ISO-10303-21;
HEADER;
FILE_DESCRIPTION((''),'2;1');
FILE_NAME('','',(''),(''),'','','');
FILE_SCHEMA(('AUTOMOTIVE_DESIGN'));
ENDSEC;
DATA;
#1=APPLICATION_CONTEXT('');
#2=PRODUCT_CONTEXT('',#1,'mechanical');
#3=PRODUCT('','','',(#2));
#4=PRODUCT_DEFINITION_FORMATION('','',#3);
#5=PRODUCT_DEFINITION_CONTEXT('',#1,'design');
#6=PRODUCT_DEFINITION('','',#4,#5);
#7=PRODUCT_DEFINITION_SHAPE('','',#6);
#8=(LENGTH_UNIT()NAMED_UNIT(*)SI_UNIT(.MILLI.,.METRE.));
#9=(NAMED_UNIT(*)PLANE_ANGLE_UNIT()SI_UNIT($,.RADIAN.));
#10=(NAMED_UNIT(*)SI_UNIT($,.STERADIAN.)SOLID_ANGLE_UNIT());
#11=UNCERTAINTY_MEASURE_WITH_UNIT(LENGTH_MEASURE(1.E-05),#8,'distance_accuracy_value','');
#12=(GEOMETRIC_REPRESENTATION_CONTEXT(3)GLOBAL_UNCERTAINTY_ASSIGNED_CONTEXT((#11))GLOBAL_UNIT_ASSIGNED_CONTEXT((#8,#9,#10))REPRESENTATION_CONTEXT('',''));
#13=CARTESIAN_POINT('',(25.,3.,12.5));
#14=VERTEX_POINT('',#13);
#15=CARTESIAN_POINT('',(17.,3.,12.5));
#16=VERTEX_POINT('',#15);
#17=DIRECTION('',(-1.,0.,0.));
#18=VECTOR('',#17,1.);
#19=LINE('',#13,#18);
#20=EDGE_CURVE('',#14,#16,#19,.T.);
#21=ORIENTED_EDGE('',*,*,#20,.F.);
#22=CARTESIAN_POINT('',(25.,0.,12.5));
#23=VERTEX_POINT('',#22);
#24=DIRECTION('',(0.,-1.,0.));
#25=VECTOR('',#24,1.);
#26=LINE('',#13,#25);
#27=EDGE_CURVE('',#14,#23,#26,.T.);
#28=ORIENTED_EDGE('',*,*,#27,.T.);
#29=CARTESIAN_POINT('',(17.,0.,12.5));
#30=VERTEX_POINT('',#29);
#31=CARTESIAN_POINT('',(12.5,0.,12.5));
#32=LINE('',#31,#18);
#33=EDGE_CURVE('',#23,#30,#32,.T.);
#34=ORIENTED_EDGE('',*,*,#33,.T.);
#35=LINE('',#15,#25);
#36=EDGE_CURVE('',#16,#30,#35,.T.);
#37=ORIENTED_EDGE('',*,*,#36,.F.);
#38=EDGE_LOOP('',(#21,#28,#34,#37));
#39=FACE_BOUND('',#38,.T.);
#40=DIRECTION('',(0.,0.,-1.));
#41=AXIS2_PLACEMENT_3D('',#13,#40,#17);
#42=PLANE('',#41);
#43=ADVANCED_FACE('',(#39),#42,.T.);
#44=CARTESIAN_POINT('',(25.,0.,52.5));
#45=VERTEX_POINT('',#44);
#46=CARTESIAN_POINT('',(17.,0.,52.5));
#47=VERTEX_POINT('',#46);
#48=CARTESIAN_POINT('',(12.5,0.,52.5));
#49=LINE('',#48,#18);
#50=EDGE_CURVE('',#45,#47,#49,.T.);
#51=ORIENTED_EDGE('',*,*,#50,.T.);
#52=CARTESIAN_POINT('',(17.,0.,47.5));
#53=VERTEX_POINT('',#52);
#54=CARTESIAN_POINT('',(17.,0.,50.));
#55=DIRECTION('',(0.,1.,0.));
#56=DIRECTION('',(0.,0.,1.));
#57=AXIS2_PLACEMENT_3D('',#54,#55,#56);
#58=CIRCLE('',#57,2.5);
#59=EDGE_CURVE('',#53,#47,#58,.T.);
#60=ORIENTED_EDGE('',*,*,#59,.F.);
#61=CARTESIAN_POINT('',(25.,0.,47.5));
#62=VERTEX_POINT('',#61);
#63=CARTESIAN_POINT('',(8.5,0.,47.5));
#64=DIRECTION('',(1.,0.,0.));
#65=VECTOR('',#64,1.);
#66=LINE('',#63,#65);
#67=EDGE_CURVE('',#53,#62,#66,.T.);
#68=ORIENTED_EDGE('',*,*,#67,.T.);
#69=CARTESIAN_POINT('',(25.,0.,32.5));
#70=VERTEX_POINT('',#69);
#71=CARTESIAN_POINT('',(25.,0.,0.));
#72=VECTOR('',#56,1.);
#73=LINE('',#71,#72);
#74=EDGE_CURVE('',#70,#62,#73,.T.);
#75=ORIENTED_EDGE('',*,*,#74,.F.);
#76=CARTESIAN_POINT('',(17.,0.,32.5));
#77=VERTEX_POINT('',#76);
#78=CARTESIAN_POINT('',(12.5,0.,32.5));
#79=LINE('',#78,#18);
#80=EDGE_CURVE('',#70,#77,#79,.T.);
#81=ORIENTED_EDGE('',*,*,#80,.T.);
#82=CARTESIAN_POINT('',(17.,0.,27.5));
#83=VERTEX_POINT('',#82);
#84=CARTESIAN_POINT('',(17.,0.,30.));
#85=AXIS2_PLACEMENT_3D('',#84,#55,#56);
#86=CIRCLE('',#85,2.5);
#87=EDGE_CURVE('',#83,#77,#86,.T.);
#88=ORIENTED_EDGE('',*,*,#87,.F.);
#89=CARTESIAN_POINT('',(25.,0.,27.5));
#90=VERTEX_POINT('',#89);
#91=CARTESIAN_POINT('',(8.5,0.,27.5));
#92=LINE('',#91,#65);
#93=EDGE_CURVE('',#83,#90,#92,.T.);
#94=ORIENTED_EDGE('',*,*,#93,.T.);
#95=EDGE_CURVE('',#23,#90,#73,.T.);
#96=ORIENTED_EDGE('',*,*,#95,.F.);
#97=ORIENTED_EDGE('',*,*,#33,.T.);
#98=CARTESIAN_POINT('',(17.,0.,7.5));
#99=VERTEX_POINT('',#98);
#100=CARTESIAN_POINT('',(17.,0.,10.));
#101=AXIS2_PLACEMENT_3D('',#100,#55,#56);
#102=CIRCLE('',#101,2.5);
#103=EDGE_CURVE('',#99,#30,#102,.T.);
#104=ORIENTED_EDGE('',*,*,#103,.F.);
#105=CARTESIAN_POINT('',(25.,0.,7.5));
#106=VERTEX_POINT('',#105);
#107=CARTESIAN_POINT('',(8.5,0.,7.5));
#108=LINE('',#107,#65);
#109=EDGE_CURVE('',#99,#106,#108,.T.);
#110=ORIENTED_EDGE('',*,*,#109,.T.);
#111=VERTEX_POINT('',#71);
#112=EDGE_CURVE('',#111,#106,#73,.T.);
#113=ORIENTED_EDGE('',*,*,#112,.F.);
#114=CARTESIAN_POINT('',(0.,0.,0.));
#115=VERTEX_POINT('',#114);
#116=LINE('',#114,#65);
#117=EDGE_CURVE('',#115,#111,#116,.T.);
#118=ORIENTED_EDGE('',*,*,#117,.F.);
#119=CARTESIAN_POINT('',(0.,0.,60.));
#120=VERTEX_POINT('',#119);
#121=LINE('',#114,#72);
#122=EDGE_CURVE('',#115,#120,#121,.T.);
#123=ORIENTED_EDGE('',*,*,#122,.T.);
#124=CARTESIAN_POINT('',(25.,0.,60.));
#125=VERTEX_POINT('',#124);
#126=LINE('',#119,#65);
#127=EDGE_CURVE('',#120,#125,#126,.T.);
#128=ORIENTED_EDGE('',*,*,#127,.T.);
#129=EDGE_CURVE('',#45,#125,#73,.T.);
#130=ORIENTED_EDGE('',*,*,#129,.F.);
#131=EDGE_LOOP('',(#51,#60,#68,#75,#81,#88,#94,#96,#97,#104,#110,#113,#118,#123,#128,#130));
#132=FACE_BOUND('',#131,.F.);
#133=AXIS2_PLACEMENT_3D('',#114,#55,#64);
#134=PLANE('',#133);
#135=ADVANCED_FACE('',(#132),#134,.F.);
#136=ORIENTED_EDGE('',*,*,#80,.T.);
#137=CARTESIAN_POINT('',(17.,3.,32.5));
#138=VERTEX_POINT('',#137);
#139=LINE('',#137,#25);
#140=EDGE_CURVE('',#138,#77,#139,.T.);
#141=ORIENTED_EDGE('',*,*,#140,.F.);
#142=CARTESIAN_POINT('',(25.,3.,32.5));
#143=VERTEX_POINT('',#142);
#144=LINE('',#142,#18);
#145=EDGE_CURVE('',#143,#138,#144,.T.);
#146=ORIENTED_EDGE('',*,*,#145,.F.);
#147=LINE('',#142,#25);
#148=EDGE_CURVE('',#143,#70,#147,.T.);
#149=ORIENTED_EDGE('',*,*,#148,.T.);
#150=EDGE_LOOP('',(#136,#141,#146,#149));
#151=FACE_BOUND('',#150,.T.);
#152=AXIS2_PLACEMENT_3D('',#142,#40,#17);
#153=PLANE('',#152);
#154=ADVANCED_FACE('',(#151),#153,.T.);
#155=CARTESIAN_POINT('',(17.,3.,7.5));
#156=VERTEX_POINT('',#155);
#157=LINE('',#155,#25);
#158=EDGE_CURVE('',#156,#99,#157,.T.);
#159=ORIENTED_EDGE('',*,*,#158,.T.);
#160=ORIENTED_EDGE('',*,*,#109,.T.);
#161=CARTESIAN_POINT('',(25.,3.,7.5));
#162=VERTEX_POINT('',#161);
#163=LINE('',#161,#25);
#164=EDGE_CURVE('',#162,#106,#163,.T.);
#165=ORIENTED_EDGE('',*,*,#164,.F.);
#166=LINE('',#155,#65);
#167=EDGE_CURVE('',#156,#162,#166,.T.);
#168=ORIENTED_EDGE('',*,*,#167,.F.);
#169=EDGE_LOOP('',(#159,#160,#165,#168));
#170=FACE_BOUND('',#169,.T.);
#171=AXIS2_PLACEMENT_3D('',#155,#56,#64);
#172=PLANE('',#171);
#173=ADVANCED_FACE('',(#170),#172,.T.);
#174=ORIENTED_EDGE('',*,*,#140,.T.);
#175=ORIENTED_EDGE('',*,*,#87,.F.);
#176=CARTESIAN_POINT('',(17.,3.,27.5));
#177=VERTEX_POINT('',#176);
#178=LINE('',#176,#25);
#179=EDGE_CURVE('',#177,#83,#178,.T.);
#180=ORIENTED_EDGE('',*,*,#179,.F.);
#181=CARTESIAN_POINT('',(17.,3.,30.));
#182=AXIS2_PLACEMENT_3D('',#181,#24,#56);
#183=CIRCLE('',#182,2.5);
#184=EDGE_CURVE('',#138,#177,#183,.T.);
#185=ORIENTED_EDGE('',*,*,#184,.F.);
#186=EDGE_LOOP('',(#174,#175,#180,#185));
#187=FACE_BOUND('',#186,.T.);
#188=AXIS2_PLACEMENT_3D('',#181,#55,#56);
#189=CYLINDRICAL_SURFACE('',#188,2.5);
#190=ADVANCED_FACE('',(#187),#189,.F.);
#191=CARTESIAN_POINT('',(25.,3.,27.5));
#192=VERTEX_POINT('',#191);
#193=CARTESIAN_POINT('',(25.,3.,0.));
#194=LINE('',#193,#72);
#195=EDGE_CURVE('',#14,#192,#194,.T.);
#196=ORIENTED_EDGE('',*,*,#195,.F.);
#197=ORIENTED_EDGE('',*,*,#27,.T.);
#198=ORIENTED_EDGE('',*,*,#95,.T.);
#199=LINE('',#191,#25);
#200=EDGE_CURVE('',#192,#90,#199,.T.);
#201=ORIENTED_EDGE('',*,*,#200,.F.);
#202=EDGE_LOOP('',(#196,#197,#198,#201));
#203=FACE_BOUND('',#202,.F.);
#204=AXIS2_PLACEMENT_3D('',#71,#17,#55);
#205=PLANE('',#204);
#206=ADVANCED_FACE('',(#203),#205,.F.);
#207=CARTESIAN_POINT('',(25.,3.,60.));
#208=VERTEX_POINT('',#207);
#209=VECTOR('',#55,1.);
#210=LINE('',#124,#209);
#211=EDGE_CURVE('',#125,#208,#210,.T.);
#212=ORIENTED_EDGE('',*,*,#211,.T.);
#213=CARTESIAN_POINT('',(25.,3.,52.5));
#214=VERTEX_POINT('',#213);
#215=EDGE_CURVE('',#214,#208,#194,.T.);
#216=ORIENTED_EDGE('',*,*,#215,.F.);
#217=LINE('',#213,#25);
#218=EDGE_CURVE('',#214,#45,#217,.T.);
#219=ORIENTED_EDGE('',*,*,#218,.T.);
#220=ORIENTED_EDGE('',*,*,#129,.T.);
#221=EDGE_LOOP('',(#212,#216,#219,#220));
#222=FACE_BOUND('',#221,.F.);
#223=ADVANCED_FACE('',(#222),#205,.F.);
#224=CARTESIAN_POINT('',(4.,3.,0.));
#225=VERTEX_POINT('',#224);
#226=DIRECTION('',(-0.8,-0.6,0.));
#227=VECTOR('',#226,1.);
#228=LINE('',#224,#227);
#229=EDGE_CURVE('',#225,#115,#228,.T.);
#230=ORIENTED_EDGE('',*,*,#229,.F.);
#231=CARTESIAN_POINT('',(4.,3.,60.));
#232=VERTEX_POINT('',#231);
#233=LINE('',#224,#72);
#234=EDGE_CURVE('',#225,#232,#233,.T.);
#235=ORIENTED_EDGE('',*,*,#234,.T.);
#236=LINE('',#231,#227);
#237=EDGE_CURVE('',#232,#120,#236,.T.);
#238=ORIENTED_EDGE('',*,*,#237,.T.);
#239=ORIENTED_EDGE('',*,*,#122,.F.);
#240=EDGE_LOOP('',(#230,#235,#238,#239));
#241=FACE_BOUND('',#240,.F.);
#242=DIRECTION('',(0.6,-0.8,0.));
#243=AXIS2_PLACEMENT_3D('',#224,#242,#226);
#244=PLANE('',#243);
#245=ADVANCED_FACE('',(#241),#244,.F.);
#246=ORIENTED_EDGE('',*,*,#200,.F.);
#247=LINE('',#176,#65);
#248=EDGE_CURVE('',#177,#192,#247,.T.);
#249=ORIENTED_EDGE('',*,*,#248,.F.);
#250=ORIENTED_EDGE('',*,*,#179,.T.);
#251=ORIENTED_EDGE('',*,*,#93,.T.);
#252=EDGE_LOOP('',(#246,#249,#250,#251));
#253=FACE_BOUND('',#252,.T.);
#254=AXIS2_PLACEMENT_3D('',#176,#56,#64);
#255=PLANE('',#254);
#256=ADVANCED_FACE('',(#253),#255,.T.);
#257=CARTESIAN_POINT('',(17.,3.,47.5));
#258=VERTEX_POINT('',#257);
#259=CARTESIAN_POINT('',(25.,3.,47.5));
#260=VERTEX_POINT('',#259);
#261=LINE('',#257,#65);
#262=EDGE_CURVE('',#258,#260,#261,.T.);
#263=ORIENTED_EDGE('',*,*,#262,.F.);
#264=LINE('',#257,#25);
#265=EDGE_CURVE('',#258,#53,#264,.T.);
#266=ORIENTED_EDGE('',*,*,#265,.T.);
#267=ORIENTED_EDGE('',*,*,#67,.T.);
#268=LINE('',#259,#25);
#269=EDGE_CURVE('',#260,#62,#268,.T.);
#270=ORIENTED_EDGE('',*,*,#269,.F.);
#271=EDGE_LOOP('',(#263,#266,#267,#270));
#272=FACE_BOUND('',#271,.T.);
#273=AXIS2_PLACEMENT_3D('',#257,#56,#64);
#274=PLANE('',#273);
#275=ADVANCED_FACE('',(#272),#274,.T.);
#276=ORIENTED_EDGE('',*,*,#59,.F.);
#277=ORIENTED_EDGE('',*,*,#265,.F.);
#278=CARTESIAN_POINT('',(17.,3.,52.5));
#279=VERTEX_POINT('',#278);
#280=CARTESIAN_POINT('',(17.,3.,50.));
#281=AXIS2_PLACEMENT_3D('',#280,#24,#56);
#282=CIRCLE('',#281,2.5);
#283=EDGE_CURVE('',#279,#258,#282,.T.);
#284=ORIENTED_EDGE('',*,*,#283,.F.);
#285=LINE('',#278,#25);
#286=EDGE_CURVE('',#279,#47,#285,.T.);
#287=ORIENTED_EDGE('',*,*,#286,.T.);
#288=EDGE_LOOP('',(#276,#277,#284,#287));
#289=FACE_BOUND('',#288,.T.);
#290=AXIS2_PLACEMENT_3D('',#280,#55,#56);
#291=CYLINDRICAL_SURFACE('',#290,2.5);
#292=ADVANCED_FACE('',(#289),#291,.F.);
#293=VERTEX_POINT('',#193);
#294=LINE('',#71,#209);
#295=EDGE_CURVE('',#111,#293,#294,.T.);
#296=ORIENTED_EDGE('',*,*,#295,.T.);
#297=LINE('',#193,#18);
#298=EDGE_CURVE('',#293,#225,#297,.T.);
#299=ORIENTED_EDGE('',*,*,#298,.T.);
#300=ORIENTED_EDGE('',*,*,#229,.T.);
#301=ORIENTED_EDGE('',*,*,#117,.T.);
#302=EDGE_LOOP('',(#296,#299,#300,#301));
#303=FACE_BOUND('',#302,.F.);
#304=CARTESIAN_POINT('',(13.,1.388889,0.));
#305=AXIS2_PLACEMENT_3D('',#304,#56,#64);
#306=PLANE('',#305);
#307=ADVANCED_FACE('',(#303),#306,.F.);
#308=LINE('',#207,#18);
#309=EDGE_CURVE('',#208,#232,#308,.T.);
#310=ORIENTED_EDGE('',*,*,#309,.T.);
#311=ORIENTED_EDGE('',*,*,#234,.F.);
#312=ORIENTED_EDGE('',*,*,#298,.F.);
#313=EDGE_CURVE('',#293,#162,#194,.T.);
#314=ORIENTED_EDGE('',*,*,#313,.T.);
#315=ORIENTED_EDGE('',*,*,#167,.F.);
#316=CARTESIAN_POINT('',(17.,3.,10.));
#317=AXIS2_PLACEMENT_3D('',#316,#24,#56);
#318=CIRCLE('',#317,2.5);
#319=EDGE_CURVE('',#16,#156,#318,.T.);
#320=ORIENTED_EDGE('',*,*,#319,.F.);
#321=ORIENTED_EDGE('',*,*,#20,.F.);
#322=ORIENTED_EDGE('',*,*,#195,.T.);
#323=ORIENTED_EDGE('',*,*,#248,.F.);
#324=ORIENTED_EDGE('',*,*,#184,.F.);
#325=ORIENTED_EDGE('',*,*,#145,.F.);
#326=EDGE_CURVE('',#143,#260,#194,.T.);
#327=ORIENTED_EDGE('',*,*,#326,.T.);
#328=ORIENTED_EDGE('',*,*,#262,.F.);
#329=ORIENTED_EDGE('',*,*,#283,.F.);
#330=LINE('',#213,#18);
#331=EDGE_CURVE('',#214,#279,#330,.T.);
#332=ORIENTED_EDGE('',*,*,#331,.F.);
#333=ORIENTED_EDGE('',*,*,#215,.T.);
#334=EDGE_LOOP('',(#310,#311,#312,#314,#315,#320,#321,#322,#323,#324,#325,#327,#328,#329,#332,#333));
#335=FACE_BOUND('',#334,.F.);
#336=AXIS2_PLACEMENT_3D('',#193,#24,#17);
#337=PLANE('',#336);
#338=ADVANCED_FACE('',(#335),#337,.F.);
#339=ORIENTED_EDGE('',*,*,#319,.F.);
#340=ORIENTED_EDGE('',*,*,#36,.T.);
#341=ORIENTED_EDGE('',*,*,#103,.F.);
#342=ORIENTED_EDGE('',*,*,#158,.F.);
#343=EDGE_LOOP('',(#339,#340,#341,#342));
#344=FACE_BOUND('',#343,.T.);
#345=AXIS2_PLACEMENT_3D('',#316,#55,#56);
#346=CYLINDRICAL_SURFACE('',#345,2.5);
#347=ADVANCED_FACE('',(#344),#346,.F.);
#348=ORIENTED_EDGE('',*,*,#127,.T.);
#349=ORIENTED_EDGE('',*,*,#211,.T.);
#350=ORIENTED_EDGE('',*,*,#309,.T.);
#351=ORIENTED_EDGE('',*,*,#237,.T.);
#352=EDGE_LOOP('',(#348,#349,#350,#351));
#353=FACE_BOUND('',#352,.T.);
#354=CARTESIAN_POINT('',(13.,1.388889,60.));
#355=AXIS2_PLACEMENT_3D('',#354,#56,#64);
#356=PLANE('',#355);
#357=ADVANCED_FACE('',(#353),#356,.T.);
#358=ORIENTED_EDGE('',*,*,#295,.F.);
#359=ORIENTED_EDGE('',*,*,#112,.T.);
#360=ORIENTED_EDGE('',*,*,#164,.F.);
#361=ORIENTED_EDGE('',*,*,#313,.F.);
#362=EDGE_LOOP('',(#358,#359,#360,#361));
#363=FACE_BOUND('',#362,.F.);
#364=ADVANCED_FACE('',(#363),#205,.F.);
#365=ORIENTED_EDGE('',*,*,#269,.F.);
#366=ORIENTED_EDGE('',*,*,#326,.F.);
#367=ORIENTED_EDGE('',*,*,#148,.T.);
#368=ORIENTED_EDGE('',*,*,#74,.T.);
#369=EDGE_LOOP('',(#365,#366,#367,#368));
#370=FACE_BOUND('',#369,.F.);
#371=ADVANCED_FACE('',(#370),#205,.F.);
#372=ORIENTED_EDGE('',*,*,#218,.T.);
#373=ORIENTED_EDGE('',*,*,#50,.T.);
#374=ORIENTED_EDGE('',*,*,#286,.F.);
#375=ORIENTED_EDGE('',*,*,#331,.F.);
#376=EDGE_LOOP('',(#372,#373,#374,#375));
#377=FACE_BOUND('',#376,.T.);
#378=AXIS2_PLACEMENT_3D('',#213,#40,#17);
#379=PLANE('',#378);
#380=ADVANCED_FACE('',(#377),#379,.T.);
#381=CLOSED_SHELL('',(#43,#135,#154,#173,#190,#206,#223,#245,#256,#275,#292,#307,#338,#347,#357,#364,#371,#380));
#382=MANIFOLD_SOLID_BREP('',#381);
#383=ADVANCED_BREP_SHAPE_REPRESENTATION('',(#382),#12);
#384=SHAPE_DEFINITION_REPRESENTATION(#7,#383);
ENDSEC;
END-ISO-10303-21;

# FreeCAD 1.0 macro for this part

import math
import FreeCAD as App
import Part
import Sketcher

V = App.Vector
Q = App.Units.Quantity

doc = App.newDocument("Part")
params = doc.addObject("Spreadsheet::Sheet", "Params")
for row, (alias, value) in enumerate([
    ("sketch1_width", "25 mm"),
    ("sketch1_width2", "21 mm"),
    ("sketch1_height", "3 mm"),
    ("pad1_length", "60 mm"),
    ("sketch2_radius", "2.5 mm"),
    ("sketch2_width", "8 mm"),
], start=1):
    params.set(f"A{row}", alias)
    params.set(f"B{row}", "=" + value)
    params.setAlias(f"B{row}", alias)

body = doc.addObject("PartDesign::Body", "Body")

sketch1 = body.newObject("Sketcher::SketchObject", "Sketch")
sketch1.AttachmentSupport = (doc.getObject("XY_Plane"), [""])
sketch1.MapMode = "FlatFace"
sketch1.addGeometry(Part.LineSegment(V(0, 0, 0), V(25, 0, 0)), False)
sketch1.addGeometry(Part.LineSegment(V(25, 0, 0), V(25, 3, 0)), False)
sketch1.addGeometry(Part.LineSegment(V(25, 3, 0), V(4, 3, 0)), False)
sketch1.addGeometry(Part.LineSegment(V(4, 3, 0), V(0, 0, 0)), False)
sketch1.addConstraint(Sketcher.Constraint("Coincident", 0, 2, 1, 1))
sketch1.addConstraint(Sketcher.Constraint("Coincident", 1, 2, 2, 1))
sketch1.addConstraint(Sketcher.Constraint("Coincident", 2, 2, 3, 1))
sketch1.addConstraint(Sketcher.Constraint("Coincident", 3, 2, 0, 1))
sketch1.addConstraint(Sketcher.Constraint("Horizontal", 0))
sketch1.addConstraint(Sketcher.Constraint("Vertical", 1))
sketch1.addConstraint(Sketcher.Constraint("Horizontal", 2))
sketch1.addConstraint(Sketcher.Constraint("Coincident", 3, 2, -1, 1))
sketch1.addConstraint(Sketcher.Constraint("DistanceX", 0, 1, 0, 2, Q("25 mm")))
sketch1.addConstraint(Sketcher.Constraint("DistanceX", 2, 2, 2, 1, Q("21 mm")))
sketch1.addConstraint(Sketcher.Constraint("DistanceY", 1, 1, 1, 2, Q("3 mm")))
sketch1.setExpression("Constraints[8]", "Params.sketch1_width")
sketch1.setExpression("Constraints[9]", "Params.sketch1_width2")
sketch1.setExpression("Constraints[10]", "Params.sketch1_height")
pad1 = body.newObject("PartDesign::Pad", "Pad")
pad1.Profile = sketch1
pad1.setExpression("Length", "Params.pad1_length")

sketch2 = body.newObject("Sketcher::SketchObject", "Sketch001")
sketch2.AttachmentSupport = (doc.getObject("XZ_Plane"), [""])
sketch2.MapMode = "FlatFace"
sketch2.AttachmentOffset = App.Placement(V(0, 0, -3), App.Rotation())
sketch2.addGeometry(Part.LineSegment(V(17, 52.5, 0), V(25, 52.5, 0)), False)
sketch2.addGeometry(Part.LineSegment(V(25, 52.5, 0), V(25, 47.5, 0)), False)
sketch2.addGeometry(Part.LineSegment(V(25, 47.5, 0), V(17, 47.5, 0)), False)
sketch2.addGeometry(Part.ArcOfCircle(Part.Circle(V(17, 50, 0), V(0, 0, 1), 2.5), math.radians(90), math.radians(270)), False)
sketch2.addGeometry(Part.LineSegment(V(17, 32.5, 0), V(25, 32.5, 0)), False)
sketch2.addGeometry(Part.LineSegment(V(25, 32.5, 0), V(25, 27.5, 0)), False)
sketch2.addGeometry(Part.LineSegment(V(25, 27.5, 0), V(17, 27.5, 0)), False)
sketch2.addGeometry(Part.ArcOfCircle(Part.Circle(V(17, 30, 0), V(0, 0, 1), 2.5), math.radians(90), math.radians(270)), False)
sketch2.addGeometry(Part.LineSegment(V(17, 12.5, 0), V(25, 12.5, 0)), False)
sketch2.addGeometry(Part.LineSegment(V(25, 12.5, 0), V(25, 7.5, 0)), False)
sketch2.addGeometry(Part.LineSegment(V(25, 7.5, 0), V(17, 7.5, 0)), False)
sketch2.addGeometry(Part.ArcOfCircle(Part.Circle(V(17, 10, 0), V(0, 0, 1), 2.5), math.radians(90), math.radians(270)), False)
sketch2.addConstraint(Sketcher.Constraint("Coincident", 0, 2, 1, 1))
sketch2.addConstraint(Sketcher.Constraint("Coincident", 1, 2, 2, 1))
sketch2.addConstraint(Sketcher.Constraint("Tangent", 2, 2, 3, 2))
sketch2.addConstraint(Sketcher.Constraint("Tangent", 3, 1, 0, 1))
sketch2.addConstraint(Sketcher.Constraint("Coincident", 4, 2, 5, 1))
sketch2.addConstraint(Sketcher.Constraint("Coincident", 5, 2, 6, 1))
sketch2.addConstraint(Sketcher.Constraint("Tangent", 6, 2, 7, 2))
sketch2.addConstraint(Sketcher.Constraint("Tangent", 7, 1, 4, 1))
sketch2.addConstraint(Sketcher.Constraint("Coincident", 8, 2, 9, 1))
sketch2.addConstraint(Sketcher.Constraint("Coincident", 9, 2, 10, 1))
sketch2.addConstraint(Sketcher.Constraint("Tangent", 10, 2, 11, 2))
sketch2.addConstraint(Sketcher.Constraint("Tangent", 11, 1, 8, 1))
sketch2.addConstraint(Sketcher.Constraint("Horizontal", 0))
sketch2.addConstraint(Sketcher.Constraint("Vertical", 1))
sketch2.addConstraint(Sketcher.Constraint("Horizontal", 2))
sketch2.addConstraint(Sketcher.Constraint("Horizontal", 4))
sketch2.addConstraint(Sketcher.Constraint("Vertical", 5))
sketch2.addConstraint(Sketcher.Constraint("Horizontal", 6))
sketch2.addConstraint(Sketcher.Constraint("Horizontal", 8))
sketch2.addConstraint(Sketcher.Constraint("Vertical", 9))
sketch2.addConstraint(Sketcher.Constraint("Horizontal", 10))
sketch2.addConstraint(Sketcher.Constraint("Equal", 3, 7))
sketch2.addConstraint(Sketcher.Constraint("Equal", 7, 11))
sketch2.addConstraint(Sketcher.Constraint("Vertical", 3, 3, 7, 3))
sketch2.addConstraint(Sketcher.Constraint("Vertical", 7, 3, 11, 3))
sketch2.addConstraint(Sketcher.Constraint("Vertical", 1, 2, 4, 2))
sketch2.addConstraint(Sketcher.Constraint("Vertical", 5, 2, 8, 2))
sketch2.addConstraint(Sketcher.Constraint("Radius", 3, Q("2.5 mm")))
sketch2.addConstraint(Sketcher.Constraint("DistanceX", 0, 1, 0, 2, Q("8 mm")))
sketch2.addConstraint(Sketcher.Constraint("DistanceX", -1, 1, 3, 3, Q("17 mm")))
sketch2.addConstraint(Sketcher.Constraint("DistanceY", -1, 1, 3, 3, Q("50 mm")))
sketch2.addConstraint(Sketcher.Constraint("DistanceY", -1, 1, 7, 3, Q("30 mm")))
sketch2.addConstraint(Sketcher.Constraint("DistanceY", -1, 1, 11, 3, Q("10 mm")))
sketch2.setExpression("Constraints[27]", "Params.sketch2_radius")
sketch2.setExpression("Constraints[28]", "Params.sketch2_width")
pocket1 = body.newObject("PartDesign::Pocket", "Pocket")
pocket1.Profile = sketch2
pocket1.Type = "ThroughAll"
pocket1.Reversed = True

doc.recompute()
